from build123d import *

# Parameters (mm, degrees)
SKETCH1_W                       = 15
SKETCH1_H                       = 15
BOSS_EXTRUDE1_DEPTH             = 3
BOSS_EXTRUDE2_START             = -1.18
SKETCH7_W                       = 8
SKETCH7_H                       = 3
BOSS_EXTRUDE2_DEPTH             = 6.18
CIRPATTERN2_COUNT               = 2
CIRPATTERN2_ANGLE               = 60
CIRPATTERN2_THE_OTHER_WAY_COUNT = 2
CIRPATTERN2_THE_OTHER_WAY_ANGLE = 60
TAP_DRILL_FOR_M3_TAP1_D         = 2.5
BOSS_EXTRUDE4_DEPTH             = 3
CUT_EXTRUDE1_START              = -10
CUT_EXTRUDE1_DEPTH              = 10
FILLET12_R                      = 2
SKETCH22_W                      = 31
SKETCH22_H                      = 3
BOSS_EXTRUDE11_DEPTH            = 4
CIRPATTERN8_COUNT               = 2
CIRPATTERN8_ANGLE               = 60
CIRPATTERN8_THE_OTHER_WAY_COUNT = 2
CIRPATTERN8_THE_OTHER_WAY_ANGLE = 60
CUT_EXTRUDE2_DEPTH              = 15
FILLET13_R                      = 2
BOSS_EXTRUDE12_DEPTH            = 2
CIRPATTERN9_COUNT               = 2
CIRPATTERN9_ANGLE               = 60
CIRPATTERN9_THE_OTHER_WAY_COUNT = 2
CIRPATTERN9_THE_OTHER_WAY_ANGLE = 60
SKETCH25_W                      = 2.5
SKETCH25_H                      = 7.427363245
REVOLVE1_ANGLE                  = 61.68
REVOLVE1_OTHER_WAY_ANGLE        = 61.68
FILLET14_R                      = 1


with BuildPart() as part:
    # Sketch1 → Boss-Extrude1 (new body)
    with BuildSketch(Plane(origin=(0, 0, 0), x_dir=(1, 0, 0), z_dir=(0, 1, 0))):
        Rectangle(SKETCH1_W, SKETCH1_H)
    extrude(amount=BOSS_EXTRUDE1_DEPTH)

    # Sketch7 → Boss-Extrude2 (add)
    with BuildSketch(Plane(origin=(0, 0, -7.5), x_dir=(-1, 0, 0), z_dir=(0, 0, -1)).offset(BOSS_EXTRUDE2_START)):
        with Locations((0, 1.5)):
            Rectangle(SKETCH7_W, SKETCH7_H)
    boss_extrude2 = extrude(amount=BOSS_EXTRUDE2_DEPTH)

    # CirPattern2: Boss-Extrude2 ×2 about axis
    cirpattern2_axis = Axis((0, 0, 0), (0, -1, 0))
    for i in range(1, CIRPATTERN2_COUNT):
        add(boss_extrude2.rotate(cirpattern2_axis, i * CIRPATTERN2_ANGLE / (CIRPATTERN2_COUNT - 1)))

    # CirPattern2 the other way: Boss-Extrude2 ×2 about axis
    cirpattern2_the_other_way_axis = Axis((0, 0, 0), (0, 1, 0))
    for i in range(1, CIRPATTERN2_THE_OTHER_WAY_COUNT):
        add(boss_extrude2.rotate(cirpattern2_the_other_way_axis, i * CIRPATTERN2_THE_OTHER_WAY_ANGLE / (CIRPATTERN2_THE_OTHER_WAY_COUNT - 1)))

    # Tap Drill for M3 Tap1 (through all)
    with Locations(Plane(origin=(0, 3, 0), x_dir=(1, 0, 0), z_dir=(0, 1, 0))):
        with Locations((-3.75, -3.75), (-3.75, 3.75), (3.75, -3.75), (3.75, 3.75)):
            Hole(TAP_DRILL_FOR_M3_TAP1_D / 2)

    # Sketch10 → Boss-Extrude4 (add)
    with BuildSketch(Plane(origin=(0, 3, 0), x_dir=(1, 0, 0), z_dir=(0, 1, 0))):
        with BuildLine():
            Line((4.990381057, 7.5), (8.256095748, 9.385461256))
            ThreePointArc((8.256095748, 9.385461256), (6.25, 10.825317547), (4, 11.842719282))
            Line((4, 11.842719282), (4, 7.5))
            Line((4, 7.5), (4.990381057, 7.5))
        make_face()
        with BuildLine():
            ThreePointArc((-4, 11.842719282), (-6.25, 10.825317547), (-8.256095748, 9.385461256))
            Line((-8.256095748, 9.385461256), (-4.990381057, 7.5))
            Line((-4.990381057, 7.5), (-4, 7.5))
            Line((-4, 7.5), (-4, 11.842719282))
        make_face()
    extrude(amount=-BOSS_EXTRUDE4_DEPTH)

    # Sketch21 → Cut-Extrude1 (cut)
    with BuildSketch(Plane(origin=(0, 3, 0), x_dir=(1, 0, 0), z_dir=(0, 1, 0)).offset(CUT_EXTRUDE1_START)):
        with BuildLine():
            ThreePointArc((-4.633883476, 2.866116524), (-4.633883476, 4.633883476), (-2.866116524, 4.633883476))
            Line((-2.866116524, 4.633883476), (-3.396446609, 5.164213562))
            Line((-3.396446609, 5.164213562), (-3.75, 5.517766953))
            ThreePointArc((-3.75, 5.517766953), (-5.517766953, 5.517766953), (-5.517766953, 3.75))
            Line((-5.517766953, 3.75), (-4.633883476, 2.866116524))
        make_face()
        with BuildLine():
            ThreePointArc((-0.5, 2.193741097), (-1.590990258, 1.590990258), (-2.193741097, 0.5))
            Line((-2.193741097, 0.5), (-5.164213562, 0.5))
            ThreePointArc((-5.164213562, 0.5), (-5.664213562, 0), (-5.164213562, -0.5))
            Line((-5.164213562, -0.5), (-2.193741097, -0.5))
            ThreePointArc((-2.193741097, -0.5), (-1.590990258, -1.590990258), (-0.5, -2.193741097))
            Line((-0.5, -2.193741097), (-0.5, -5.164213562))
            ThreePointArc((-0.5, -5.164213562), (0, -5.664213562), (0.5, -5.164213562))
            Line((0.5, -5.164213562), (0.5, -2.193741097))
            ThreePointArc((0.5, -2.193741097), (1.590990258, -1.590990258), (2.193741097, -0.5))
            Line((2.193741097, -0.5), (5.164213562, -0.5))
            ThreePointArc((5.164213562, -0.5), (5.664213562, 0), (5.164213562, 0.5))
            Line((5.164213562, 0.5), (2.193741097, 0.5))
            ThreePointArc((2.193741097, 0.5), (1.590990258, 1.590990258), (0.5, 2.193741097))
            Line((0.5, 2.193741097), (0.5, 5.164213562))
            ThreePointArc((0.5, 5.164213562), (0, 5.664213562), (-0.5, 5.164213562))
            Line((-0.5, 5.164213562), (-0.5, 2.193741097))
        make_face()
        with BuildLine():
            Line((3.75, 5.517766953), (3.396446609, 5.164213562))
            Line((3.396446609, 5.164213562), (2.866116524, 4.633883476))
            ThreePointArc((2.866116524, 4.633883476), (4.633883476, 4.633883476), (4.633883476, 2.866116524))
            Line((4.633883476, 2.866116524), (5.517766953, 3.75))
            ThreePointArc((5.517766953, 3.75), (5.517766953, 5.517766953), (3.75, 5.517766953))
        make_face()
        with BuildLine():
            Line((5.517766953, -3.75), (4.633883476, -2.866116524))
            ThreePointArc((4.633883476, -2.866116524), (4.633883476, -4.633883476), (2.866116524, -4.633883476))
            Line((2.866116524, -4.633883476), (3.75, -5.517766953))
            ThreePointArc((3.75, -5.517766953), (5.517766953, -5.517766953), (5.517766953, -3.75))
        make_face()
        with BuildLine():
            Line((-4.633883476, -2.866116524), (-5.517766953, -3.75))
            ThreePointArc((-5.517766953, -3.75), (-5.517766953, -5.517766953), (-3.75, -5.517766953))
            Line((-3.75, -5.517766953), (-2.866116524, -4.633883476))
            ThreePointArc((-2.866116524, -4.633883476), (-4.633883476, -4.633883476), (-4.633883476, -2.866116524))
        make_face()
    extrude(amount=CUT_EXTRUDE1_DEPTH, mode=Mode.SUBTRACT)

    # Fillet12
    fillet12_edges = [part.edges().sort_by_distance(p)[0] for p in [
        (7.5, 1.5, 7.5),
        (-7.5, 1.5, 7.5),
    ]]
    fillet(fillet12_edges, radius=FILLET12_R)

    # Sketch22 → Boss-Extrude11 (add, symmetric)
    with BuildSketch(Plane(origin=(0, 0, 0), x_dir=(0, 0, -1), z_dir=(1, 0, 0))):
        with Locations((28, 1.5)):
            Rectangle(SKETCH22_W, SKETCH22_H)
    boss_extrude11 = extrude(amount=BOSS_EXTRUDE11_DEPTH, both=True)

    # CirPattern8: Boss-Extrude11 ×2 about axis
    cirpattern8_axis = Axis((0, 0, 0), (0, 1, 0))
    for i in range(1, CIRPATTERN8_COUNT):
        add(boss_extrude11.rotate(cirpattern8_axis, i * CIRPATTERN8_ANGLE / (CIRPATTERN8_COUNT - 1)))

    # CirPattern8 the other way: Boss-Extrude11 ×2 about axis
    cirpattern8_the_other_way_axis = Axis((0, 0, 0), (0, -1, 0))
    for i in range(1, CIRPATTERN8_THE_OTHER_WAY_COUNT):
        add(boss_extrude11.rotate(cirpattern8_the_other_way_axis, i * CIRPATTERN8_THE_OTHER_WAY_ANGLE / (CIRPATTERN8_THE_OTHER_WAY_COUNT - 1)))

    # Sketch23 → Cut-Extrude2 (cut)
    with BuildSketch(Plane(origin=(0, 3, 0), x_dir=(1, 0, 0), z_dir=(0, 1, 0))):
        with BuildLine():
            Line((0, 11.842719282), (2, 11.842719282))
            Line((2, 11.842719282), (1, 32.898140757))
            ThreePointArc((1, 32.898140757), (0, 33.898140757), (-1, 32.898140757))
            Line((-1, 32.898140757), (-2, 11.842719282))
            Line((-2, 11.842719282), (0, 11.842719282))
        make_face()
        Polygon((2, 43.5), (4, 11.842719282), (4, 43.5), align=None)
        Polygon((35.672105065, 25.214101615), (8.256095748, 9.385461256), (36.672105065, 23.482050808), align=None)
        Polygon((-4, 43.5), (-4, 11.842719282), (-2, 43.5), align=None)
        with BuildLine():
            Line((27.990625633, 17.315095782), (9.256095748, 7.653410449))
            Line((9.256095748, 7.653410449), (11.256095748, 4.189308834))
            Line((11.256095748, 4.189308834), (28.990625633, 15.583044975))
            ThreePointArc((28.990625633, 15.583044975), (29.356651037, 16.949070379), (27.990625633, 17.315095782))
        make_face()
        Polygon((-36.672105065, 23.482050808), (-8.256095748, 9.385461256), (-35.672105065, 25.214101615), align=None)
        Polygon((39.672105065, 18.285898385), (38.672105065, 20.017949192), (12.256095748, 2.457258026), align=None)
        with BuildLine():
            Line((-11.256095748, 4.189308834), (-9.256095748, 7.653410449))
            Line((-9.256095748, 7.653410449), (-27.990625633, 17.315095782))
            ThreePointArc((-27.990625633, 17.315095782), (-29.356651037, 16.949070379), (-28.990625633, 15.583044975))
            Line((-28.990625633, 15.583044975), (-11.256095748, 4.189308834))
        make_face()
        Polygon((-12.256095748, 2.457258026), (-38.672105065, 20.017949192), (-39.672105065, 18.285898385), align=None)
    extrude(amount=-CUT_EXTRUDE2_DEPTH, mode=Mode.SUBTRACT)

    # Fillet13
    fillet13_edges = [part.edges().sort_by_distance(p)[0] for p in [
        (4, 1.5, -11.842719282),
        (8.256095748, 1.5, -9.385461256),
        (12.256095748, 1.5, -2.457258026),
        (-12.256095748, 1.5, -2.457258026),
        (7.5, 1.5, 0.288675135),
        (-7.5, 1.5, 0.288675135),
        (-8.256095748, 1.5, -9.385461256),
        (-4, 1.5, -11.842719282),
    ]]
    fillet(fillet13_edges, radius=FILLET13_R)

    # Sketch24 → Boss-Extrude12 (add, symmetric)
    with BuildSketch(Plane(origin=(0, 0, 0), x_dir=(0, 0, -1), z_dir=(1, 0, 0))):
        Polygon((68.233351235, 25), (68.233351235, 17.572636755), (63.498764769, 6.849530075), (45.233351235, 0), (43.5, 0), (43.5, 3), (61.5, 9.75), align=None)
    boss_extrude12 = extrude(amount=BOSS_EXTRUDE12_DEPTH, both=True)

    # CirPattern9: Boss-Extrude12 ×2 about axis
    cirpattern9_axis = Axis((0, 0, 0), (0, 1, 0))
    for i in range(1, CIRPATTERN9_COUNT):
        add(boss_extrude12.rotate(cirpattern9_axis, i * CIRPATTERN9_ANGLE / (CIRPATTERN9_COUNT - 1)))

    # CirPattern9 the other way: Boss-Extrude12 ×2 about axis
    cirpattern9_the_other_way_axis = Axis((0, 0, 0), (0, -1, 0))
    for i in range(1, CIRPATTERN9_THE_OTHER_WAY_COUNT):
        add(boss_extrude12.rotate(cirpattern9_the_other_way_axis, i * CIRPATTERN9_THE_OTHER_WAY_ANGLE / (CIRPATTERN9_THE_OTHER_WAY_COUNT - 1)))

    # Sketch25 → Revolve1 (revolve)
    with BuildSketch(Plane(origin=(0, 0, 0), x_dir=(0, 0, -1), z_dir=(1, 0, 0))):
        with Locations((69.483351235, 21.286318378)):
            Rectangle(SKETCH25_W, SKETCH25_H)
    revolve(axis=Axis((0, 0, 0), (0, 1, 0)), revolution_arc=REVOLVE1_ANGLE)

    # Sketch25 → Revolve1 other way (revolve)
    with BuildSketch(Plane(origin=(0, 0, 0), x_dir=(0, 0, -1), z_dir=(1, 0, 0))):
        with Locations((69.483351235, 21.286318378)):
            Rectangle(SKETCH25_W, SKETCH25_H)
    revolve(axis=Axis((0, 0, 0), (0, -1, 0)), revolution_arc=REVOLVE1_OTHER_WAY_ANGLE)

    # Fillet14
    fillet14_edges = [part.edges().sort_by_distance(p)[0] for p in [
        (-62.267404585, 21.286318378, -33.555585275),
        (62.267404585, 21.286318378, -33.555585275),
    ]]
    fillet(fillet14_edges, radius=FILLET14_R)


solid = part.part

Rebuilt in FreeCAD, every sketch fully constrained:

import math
import FreeCAD as App
import Part
import Sketcher

V = App.Vector
Q = App.Units.Quantity


def edges_at(feature, points):
    """Names of the edges that pass closest to the given points."""
    edges = feature.Shape.Edges
    near = lambda p: min(range(len(edges)), key=lambda i: edges[i].distToShape(Part.Vertex(*p))[0])
    return sorted({f"Edge{near(p) + 1}" for p in points})


def add_polygon(sketch, points):
    """Adds a closed chain of lines whose ends are joined by coincident constraints."""
    first, n = sketch.GeometryCount, len(points)
    for a, b in zip(points, points[1:] + points[:1]):
        sketch.addGeometry(Part.LineSegment(App.Vector(*a, 0), App.Vector(*b, 0)), False)
    for i in range(n):
        sketch.addConstraint(Sketcher.Constraint("Coincident", first + i, 2, first + (i + 1) % n, 1))

doc = App.newDocument("Part")
body = doc.addObject("PartDesign::Body", "Body")

sketch1 = body.newObject("Sketcher::SketchObject", "Sketch")
sketch1.AttachmentSupport = (doc.getObject("XZ_Plane"), [""])
sketch1.MapMode = "FlatFace"
add_polygon(sketch1, [(-7.5, -7.5), (-7.5, 7.5), (7.5, 7.5), (7.5, -7.5)])
sketch1.addConstraint(Sketcher.Constraint("Vertical", 0))
sketch1.addConstraint(Sketcher.Constraint("Horizontal", 1))
sketch1.addConstraint(Sketcher.Constraint("Vertical", 2))
sketch1.addConstraint(Sketcher.Constraint("Horizontal", 3))
sketch1.addConstraint(Sketcher.Constraint("Symmetric", 0, 2, 2, 2, -1, 1))
sketch1.addConstraint(Sketcher.Constraint("Equal", 3, 0))
sketch1.addConstraint(Sketcher.Constraint("DistanceX", 1, 1, 1, 2, 15.0))
pad1 = body.newObject("PartDesign::Pad", "Pad")
pad1.Profile = sketch1
pad1.Length = 3
pad1.Reversed = True

sketch2 = body.newObject("Sketcher::SketchObject", "Sketch001")
sketch2.AttachmentSupport = (doc.getObject("XY_Plane"), [""])
sketch2.MapMode = "FlatFace"
sketch2.AttachmentOffset = App.Placement(V(0, 0, -6.32), App.Rotation())
add_polygon(sketch2, [(4, 3), (4, 0), (-4, 0), (-4, 3)])
sketch2.addConstraint(Sketcher.Constraint("Vertical", 0))
sketch2.addConstraint(Sketcher.Constraint("Horizontal", 1))
sketch2.addConstraint(Sketcher.Constraint("Vertical", 2))
sketch2.addConstraint(Sketcher.Constraint("Horizontal", 3))
sketch2.addConstraint(Sketcher.Constraint("Symmetric", 0, 2, 1, 2, -1, 1))
sketch2.addConstraint(Sketcher.Constraint("DistanceX", 1, 2, 1, 1, 8.0))
sketch2.addConstraint(Sketcher.Constraint("DistanceY", 0, 2, 0, 1, 3.0))
pad2 = body.newObject("PartDesign::Pad", "Pad001")
pad2.Profile = sketch2
pad2.Length = 6.18
pad2.Reversed = True
doc.recompute()

polarpattern = body.newObject("PartDesign::PolarPattern", "PolarPattern")
polarpattern.Originals = [pad2]
polarpattern.Axis = (doc.getObject("Y_Axis"), [""])
polarpattern.Angle = 60
polarpattern.Occurrences = 2
polarpattern.Reversed = True
body.Tip = polarpattern
doc.recompute()

polarpattern2 = body.newObject("PartDesign::PolarPattern", "PolarPattern001")
polarpattern2.Originals = [pad2]
polarpattern2.Axis = (doc.getObject("Y_Axis"), [""])
polarpattern2.Angle = 60
polarpattern2.Occurrences = 2
body.Tip = polarpattern2

sketch3 = body.newObject("Sketcher::SketchObject", "Sketch002")
sketch3.AttachmentSupport = (doc.getObject("XZ_Plane"), [""])
sketch3.MapMode = "FlatFace"
sketch3.AttachmentOffset = App.Placement(V(0, 0, -3), App.Rotation())
sketch3.addGeometry(Part.Circle(V(-3.75, 3.75, 0), V(0, 0, 1), 1.25), False)
sketch3.addGeometry(Part.Circle(V(-3.75, -3.75, 0), V(0, 0, 1), 1.25), False)
sketch3.addGeometry(Part.Circle(V(3.75, 3.75, 0), V(0, 0, 1), 1.25), False)
sketch3.addGeometry(Part.Circle(V(3.75, -3.75, 0), V(0, 0, 1), 1.25), False)
sketch3.addConstraint(Sketcher.Constraint("Equal", 0, 1))
sketch3.addConstraint(Sketcher.Constraint("Equal", 1, 2))
sketch3.addConstraint(Sketcher.Constraint("Equal", 2, 3))
sketch3.addConstraint(Sketcher.Constraint("Symmetric", 1, 3, 2, 3, -1, 1))
sketch3.addConstraint(Sketcher.Constraint("Symmetric", 0, 3, 3, 3, -1, 1))
sketch3.addConstraint(Sketcher.Constraint("Symmetric", 0, 3, 2, 3, -2))
sketch3.addConstraint(Sketcher.Constraint("Diameter", 0, 2.5))
sketch3.addConstraint(Sketcher.Constraint("DistanceY", 1, 3, 0, 3, 7.5))
sketch3.addConstraint(Sketcher.Constraint("DistanceX", 0, 3, 2, 3, 7.5))
doc.recompute()
hole = body.newObject("PartDesign::Hole", "Hole")
hole.Profile = sketch3
hole.ThreadType = "None"
hole.Diameter = 2.5
hole.DepthType = "ThroughAll"
hole.Reversed = True

sketch4 = body.newObject("Sketcher::SketchObject", "Sketch003")
sketch4.AttachmentSupport = (doc.getObject("XZ_Plane"), [""])
sketch4.MapMode = "FlatFace"
sketch4.AttachmentOffset = App.Placement(V(0, 0, -3), App.Rotation())
sketch4.addGeometry(Part.LineSegment(V(4.990381, -7.5, 0), V(8.256096, -9.385461, 0)), False)
sketch4.addGeometry(Part.ArcOfCircle(Part.Circle(V(0, 0, 0), V(0, 0, 1), 12.5), math.radians(-71.337075), math.radians(-48.662925)), False)
sketch4.addGeometry(Part.LineSegment(V(4, -11.842719, 0), V(4, -7.5, 0)), False)
sketch4.addGeometry(Part.LineSegment(V(4, -7.5, 0), V(4.990381, -7.5, 0)), False)
sketch4.addGeometry(Part.ArcOfCircle(Part.Circle(V(0, 0, 0), V(0, 0, 1), 12.5), math.radians(-131.337075), math.radians(-108.662925)), False)
sketch4.addGeometry(Part.LineSegment(V(-8.256096, -9.385461, 0), V(-4.990381, -7.5, 0)), False)
sketch4.addGeometry(Part.LineSegment(V(-4.990381, -7.5, 0), V(-4, -7.5, 0)), False)
sketch4.addGeometry(Part.LineSegment(V(-4, -7.5, 0), V(-4, -11.842719, 0)), False)
sketch4.addConstraint(Sketcher.Constraint("Coincident", 0, 2, 1, 2))
sketch4.addConstraint(Sketcher.Constraint("Coincident", 1, 1, 2, 1))
sketch4.addConstraint(Sketcher.Constraint("Coincident", 2, 2, 3, 1))
sketch4.addConstraint(Sketcher.Constraint("Coincident", 3, 2, 0, 1))
sketch4.addConstraint(Sketcher.Constraint("Coincident", 4, 1, 5, 1))
sketch4.addConstraint(Sketcher.Constraint("Coincident", 5, 2, 6, 1))
sketch4.addConstraint(Sketcher.Constraint("Coincident", 6, 2, 7, 1))
sketch4.addConstraint(Sketcher.Constraint("Coincident", 7, 2, 4, 2))
sketch4.addConstraint(Sketcher.Constraint("Vertical", 2))
sketch4.addConstraint(Sketcher.Constraint("Horizontal", 3))
sketch4.addConstraint(Sketcher.Constraint("Horizontal", 6))
sketch4.addConstraint(Sketcher.Constraint("Vertical", 7))
sketch4.addConstraint(Sketcher.Constraint("Coincident", 1, 3, -1, 1))
sketch4.addConstraint(Sketcher.Constraint("Coincident", 4, 3, -1, 1))
sketch4.addConstraint(Sketcher.Constraint("Equal", 1, 4))
sketch4.addConstraint(Sketcher.Constraint("Symmetric", 3, 2, 5, 2, -2))
sketch4.addConstraint(Sketcher.Constraint("Horizontal", 0, 2, 4, 1))
sketch4.addConstraint(Sketcher.Constraint("Horizontal", 1, 1, 7, 2))
sketch4.addConstraint(Sketcher.Constraint("Radius", 1, 12.5))
sketch4.addConstraint(Sketcher.Constraint("Angle", 0, Q("-30 deg")))
sketch4.addConstraint(Sketcher.Constraint("DistanceX", -1, 1, 1, 1, 4.0))
sketch4.addConstraint(Sketcher.Constraint("DistanceY", 2, 2, -1, 1, 7.5))
sketch4.addConstraint(Sketcher.Constraint("DistanceX", 3, 1, 3, 2, 0.990381))
pad3 = body.newObject("PartDesign::Pad", "Pad002")
pad3.Profile = sketch4
pad3.Length = 3

sketch5 = body.newObject("Sketcher::SketchObject", "Sketch004")
sketch5.AttachmentSupport = (doc.getObject("XZ_Plane"), [""])
sketch5.MapMode = "FlatFace"
sketch5.AttachmentOffset = App.Placement(V(0, 0, 7), App.Rotation())
sketch5.addGeometry(Part.ArcOfCircle(Part.Circle(V(-3.75, -3.75, 0), V(0, 0, 1), 1.25), math.radians(135), math.radians(315)), False)
sketch5.addGeometry(Part.LineSegment(V(-2.866117, -4.633883, 0), V(-3.396447, -5.164214, 0)), False)
sketch5.addGeometry(Part.LineSegment(V(-3.396447, -5.164214, 0), V(-3.75, -5.517767, 0)), False)
sketch5.addGeometry(Part.ArcOfCircle(Part.Circle(V(-4.633883, -4.633883, 0), V(0, 0, 1), 1.25), math.radians(135), math.radians(315)), False)
sketch5.addGeometry(Part.LineSegment(V(-5.517767, -3.75, 0), V(-4.633883, -2.866117, 0)), False)
sketch5.addGeometry(Part.ArcOfCircle(Part.Circle(V(0, 0, 0), V(0, 0, 1), 2.25), math.radians(-167.160412), math.radians(-102.839588)), False)
sketch5.addGeometry(Part.LineSegment(V(-2.193741, -0.5, 0), V(-5.164214, -0.5, 0)), False)
sketch5.addGeometry(Part.ArcOfCircle(Part.Circle(V(-5.164214, 0, 0), V(0, 0, 1), 0.5), math.radians(90), math.radians(270)), False)
sketch5.addGeometry(Part.LineSegment(V(-5.164214, 0.5, 0), V(-2.193741, 0.5, 0)), False)
sketch5.addGeometry(Part.ArcOfCircle(Part.Circle(V(0, 0, 0), V(0, 0, 1), 2.25), math.radians(102.839588), math.radians(167.160412)), False)
sketch5.addGeometry(Part.LineSegment(V(-0.5, 2.193741, 0), V(-0.5, 5.164214, 0)), False)
sketch5.addGeometry(Part.ArcOfCircle(Part.Circle(V(0, 5.164214, 0), V(0, 0, 1), 0.5), math.radians(0), math.radians(180)), False)
sketch5.addGeometry(Part.LineSegment(V(0.5, 5.164214, 0), V(0.5, 2.193741, 0)), False)
sketch5.addGeometry(Part.ArcOfCircle(Part.Circle(V(0, 0, 0), V(0, 0, 1), 2.25), math.radians(12.839588), math.radians(77.160412)), False)
sketch5.addGeometry(Part.LineSegment(V(2.193741, 0.5, 0), V(5.164214, 0.5, 0)), False)
sketch5.addGeometry(Part.ArcOfCircle(Part.Circle(V(5.164214, 0, 0), V(0, 0, 1), 0.5), math.radians(-90), math.radians(90)), False)
sketch5.addGeometry(Part.LineSegment(V(5.164214, -0.5, 0), V(2.193741, -0.5, 0)), False)
sketch5.addGeometry(Part.ArcOfCircle(Part.Circle(V(0, 0, 0), V(0, 0, 1), 2.25), math.radians(-77.160412), math.radians(-12.839588)), False)
sketch5.addGeometry(Part.LineSegment(V(0.5, -2.193741, 0), V(0.5, -5.164214, 0)), False)
sketch5.addGeometry(Part.ArcOfCircle(Part.Circle(V(0, -5.164214, 0), V(0, 0, 1), 0.5), math.radians(180), math.radians(360)), False)
sketch5.addGeometry(Part.LineSegment(V(-0.5, -5.164214, 0), V(-0.5, -2.193741, 0)), False)
sketch5.addGeometry(Part.LineSegment(V(3.75, -5.517767, 0), V(3.396447, -5.164214, 0)), False)
sketch5.addGeometry(Part.LineSegment(V(3.396447, -5.164214, 0), V(2.866117, -4.633883, 0)), False)
sketch5.addGeometry(Part.ArcOfCircle(Part.Circle(V(3.75, -3.75, 0), V(0, 0, 1), 1.25), math.radians(-135), math.radians(45)), False)
sketch5.addGeometry(Part.LineSegment(V(4.633883, -2.866117, 0), V(5.517767, -3.75, 0)), False)
sketch5.addGeometry(Part.ArcOfCircle(Part.Circle(V(4.633883, -4.633883, 0), V(0, 0, 1), 1.25), math.radians(-135), math.radians(45)), False)
sketch5.addGeometry(Part.LineSegment(V(5.517767, 3.75, 0), V(4.633883, 2.866117, 0)), False)
sketch5.addGeometry(Part.ArcOfCircle(Part.Circle(V(3.75, 3.75, 0), V(0, 0, 1), 1.25), math.radians(-45), math.radians(135)), False)
sketch5.addGeometry(Part.LineSegment(V(2.866117, 4.633883, 0), V(3.75, 5.517767, 0)), False)
sketch5.addGeometry(Part.ArcOfCircle(Part.Circle(V(4.633883, 4.633883, 0), V(0, 0, 1), 1.25), math.radians(-45), math.radians(135)), False)
sketch5.addGeometry(Part.LineSegment(V(-4.633883, 2.866117, 0), V(-5.517767, 3.75, 0)), False)
sketch5.addGeometry(Part.ArcOfCircle(Part.Circle(V(-4.633883, 4.633883, 0), V(0, 0, 1), 1.25), math.radians(45), math.radians(225)), False)
sketch5.addGeometry(Part.LineSegment(V(-3.75, 5.517767, 0), V(-2.866117, 4.633883, 0)), False)
sketch5.addGeometry(Part.ArcOfCircle(Part.Circle(V(-3.75, 3.75, 0), V(0, 0, 1), 1.25), math.radians(45), math.radians(225)), False)
sketch5.addConstraint(Sketcher.Constraint("Tangent", 0, 2, 1, 1))
sketch5.addConstraint(Sketcher.Constraint("Coincident", 1, 2, 2, 1))
sketch5.addConstraint(Sketcher.Constraint("Tangent", 2, 2, 3, 2))
sketch5.addConstraint(Sketcher.Constraint("Tangent", 3, 1, 4, 1))
sketch5.addConstraint(Sketcher.Constraint("Tangent", 4, 2, 0, 1))
sketch5.addConstraint(Sketcher.Constraint("Coincident", 5, 1, 6, 1))
sketch5.addConstraint(Sketcher.Constraint("Tangent", 6, 2, 7, 2))
sketch5.addConstraint(Sketcher.Constraint("Tangent", 7, 1, 8, 1))
sketch5.addConstraint(Sketcher.Constraint("Coincident", 8, 2, 9, 2))
sketch5.addConstraint(Sketcher.Constraint("Coincident", 9, 1, 10, 1))
sketch5.addConstraint(Sketcher.Constraint("Tangent", 10, 2, 11, 2))
sketch5.addConstraint(Sketcher.Constraint("Tangent", 11, 1, 12, 1))
sketch5.addConstraint(Sketcher.Constraint("Coincident", 12, 2, 13, 2))
sketch5.addConstraint(Sketcher.Constraint("Coincident", 13, 1, 14, 1))
sketch5.addConstraint(Sketcher.Constraint("Tangent", 14, 2, 15, 2))
sketch5.addConstraint(Sketcher.Constraint("Tangent", 15, 1, 16, 1))
sketch5.addConstraint(Sketcher.Constraint("Coincident", 16, 2, 17, 2))
sketch5.addConstraint(Sketcher.Constraint("Coincident", 17, 1, 18, 1))
sketch5.addConstraint(Sketcher.Constraint("Tangent", 18, 2, 19, 2))
sketch5.addConstraint(Sketcher.Constraint("Tangent", 19, 1, 20, 1))
sketch5.addConstraint(Sketcher.Constraint("Coincident", 20, 2, 5, 2))
sketch5.addConstraint(Sketcher.Constraint("Coincident", 21, 2, 22, 1))
sketch5.addConstraint(Sketcher.Constraint("Tangent", 22, 2, 23, 1))
sketch5.addConstraint(Sketcher.Constraint("Tangent", 23, 2, 24, 1))
sketch5.addConstraint(Sketcher.Constraint("Tangent", 24, 2, 25, 2))
sketch5.addConstraint(Sketcher.Constraint("Tangent", 25, 1, 21, 1))
sketch5.addConstraint(Sketcher.Constraint("Tangent", 26, 2, 27, 1))
sketch5.addConstraint(Sketcher.Constraint("Tangent", 27, 2, 28, 1))
sketch5.addConstraint(Sketcher.Constraint("Tangent", 28, 2, 29, 2))
sketch5.addConstraint(Sketcher.Constraint("Tangent", 29, 1, 26, 1))
sketch5.addConstraint(Sketcher.Constraint("Tangent", 30, 2, 31, 2))
sketch5.addConstraint(Sketcher.Constraint("Tangent", 31, 1, 32, 1))
sketch5.addConstraint(Sketcher.Constraint("Tangent", 32, 2, 33, 1))
sketch5.addConstraint(Sketcher.Constraint("Tangent", 33, 2, 30, 1))
sketch5.addConstraint(Sketcher.Constraint("Horizontal", 6))
sketch5.addConstraint(Sketcher.Constraint("Horizontal", 8))
sketch5.addConstraint(Sketcher.Constraint("Vertical", 10))
sketch5.addConstraint(Sketcher.Constraint("Vertical", 12))
sketch5.addConstraint(Sketcher.Constraint("Horizontal", 14))
sketch5.addConstraint(Sketcher.Constraint("Horizontal", 16))
sketch5.addConstraint(Sketcher.Constraint("Vertical", 18))
sketch5.addConstraint(Sketcher.Constraint("Vertical", 20))
sketch5.addConstraint(Sketcher.Constraint("Coincident", 5, 3, -1, 1))
sketch5.addConstraint(Sketcher.Constraint("Coincident", 9, 3, -1, 1))
sketch5.addConstraint(Sketcher.Constraint("Coincident", 13, 3, -1, 1))
sketch5.addConstraint(Sketcher.Constraint("Coincident", 17, 3, -1, 1))
sketch5.addConstraint(Sketcher.Constraint("Equal", 0, 3))
sketch5.addConstraint(Sketcher.Constraint("Equal", 5, 9))
sketch5.addConstraint(Sketcher.Constraint("Equal", 7, 11))
sketch5.addConstraint(Sketcher.Constraint("Equal", 9, 13))
sketch5.addConstraint(Sketcher.Constraint("Equal", 11, 15))
sketch5.addConstraint(Sketcher.Constraint("Equal", 13, 17))
sketch5.addConstraint(Sketcher.Constraint("Equal", 15, 19))
sketch5.addConstraint(Sketcher.Constraint("Equal", 3, 23))
sketch5.addConstraint(Sketcher.Constraint("Equal", 23, 25))
sketch5.addConstraint(Sketcher.Constraint("Equal", 25, 27))
sketch5.addConstraint(Sketcher.Constraint("Equal", 27, 29))
sketch5.addConstraint(Sketcher.Constraint("Equal", 29, 31))
sketch5.addConstraint(Sketcher.Constraint("Equal", 31, 33))
sketch5.addConstraint(Sketcher.Constraint("Symmetric", 7, 3, 15, 3, -1, 1))
sketch5.addConstraint(Sketcher.Constraint("Symmetric", 11, 3, 19, 3, -1, 1))
sketch5.addConstraint(Sketcher.Constraint("Symmetric", 0, 3, 27, 3, -1, 1))
sketch5.addConstraint(Sketcher.Constraint("Symmetric", 3, 3, 29, 3, -1, 1))
sketch5.addConstraint(Sketcher.Constraint("Symmetric", 25, 3, 31, 3, -1, 1))
sketch5.addConstraint(Sketcher.Constraint("Symmetric", 23, 3, 33, 3, -1, 1))
sketch5.addConstraint(Sketcher.Constraint("Symmetric", 0, 3, 23, 3, -2))
sketch5.addConstraint(Sketcher.Constraint("Symmetric", 3, 3, 25, 3, -2))
sketch5.addConstraint(Sketcher.Constraint("Symmetric", 1, 2, 21, 2, -2))
sketch5.addConstraint(Sketcher.Constraint("PointOnObject", 7, 3, -1))
sketch5.addConstraint(Sketcher.Constraint("PointOnObject", 11, 3, -2))
sketch5.addConstraint(Sketcher.Constraint("Parallel", 1, 2))
sketch5.addConstraint(Sketcher.Constraint("Perpendicular", 4, 21))
sketch5.addConstraint(Sketcher.Constraint("Horizontal", 25, 3, 0, 2))
sketch5.addConstraint(Sketcher.Constraint("Horizontal", 19, 3, 1, 2))
sketch5.addConstraint(Sketcher.Constraint("Equal", 16, 10))
sketch5.addConstraint(Sketcher.Constraint("Radius", 7, 0.5))
sketch5.addConstraint(Sketcher.Constraint("Radius", 0, 1.25))
sketch5.addConstraint(Sketcher.Constraint("Radius", 5, 2.25))
sketch5.addConstraint(Sketcher.Constraint("Distance", 2, 0.5))
sketch5.addConstraint(Sketcher.Constraint("DistanceX", 0, 3, -1, 1, 3.75))
sketch5.addConstraint(Sketcher.Constraint("DistanceY", 0, 3, -1, 1, 3.75))
pocket1 = body.newObject("PartDesign::Pocket", "Pocket")
pocket1.Profile = sketch5
pocket1.Length = 10
doc.recompute()

fillet = body.newObject("PartDesign::Fillet", "Fillet")
fillet.Base = (pocket1, edges_at(pocket1, [(7.5, 1.5, 7.5), (-7.5, 1.5, 7.5)]))
fillet.Radius = 2

sketch6 = body.newObject("Sketcher::SketchObject", "Sketch005")
sketch6.AttachmentSupport = (doc.getObject("YZ_Plane"), [""])
sketch6.MapMode = "FlatFace"
add_polygon(sketch6, [(3, -12.5), (0, -12.5), (0, -43.5), (3, -43.5)])
sketch6.addConstraint(Sketcher.Constraint("Horizontal", 0))
sketch6.addConstraint(Sketcher.Constraint("Vertical", 1))
sketch6.addConstraint(Sketcher.Constraint("Horizontal", 2))
sketch6.addConstraint(Sketcher.Constraint("Vertical", 3))
sketch6.addConstraint(Sketcher.Constraint("PointOnObject", 0, 2, -2))
sketch6.addConstraint(Sketcher.Constraint("DistanceX", 0, 2, 0, 1, 3.0))
sketch6.addConstraint(Sketcher.Constraint("DistanceY", 1, 2, 1, 1, 31.0))
sketch6.addConstraint(Sketcher.Constraint("DistanceY", 0, 2, -1, 1, 12.5))
pad4 = body.newObject("PartDesign::Pad", "Pad003")
pad4.Profile = sketch6
pad4.Length = 8
pad4.Midplane = True
doc.recompute()

polarpattern3 = body.newObject("PartDesign::PolarPattern", "PolarPattern002")
polarpattern3.Originals = [pad4]
polarpattern3.Axis = (doc.getObject("Y_Axis"), [""])
polarpattern3.Angle = 60
polarpattern3.Occurrences = 2
body.Tip = polarpattern3
doc.recompute()

polarpattern4 = body.newObject("PartDesign::PolarPattern", "PolarPattern003")
polarpattern4.Originals = [pad4]
polarpattern4.Axis = (doc.getObject("Y_Axis"), [""])
polarpattern4.Angle = 60
polarpattern4.Occurrences = 2
polarpattern4.Reversed = True
body.Tip = polarpattern4

sketch7 = body.newObject("Sketcher::SketchObject", "Sketch006")
sketch7.AttachmentSupport = (doc.getObject("XZ_Plane"), [""])
sketch7.MapMode = "FlatFace"
sketch7.AttachmentOffset = App.Placement(V(0, 0, -3), App.Rotation())
sketch7.addGeometry(Part.LineSegment(V(2, -11.842719, 0), V(1, -32.898141, 0)), False)
sketch7.addGeometry(Part.ArcOfCircle(Part.Circle(V(0, -32.898141, 0), V(0, 0, 1), 1), math.radians(180), math.radians(360)), False)
sketch7.addGeometry(Part.LineSegment(V(-1, -32.898141, 0), V(-2, -11.842719, 0)), False)
sketch7.addGeometry(Part.LineSegment(V(-2, -11.842719, 0), V(2, -11.842719, 0)), False)
add_polygon(sketch7, [(2, -43.5), (4, -11.842719), (4, -43.5)])
add_polygon(sketch7, [(35.672105, -25.214102), (8.256096, -9.385461), (36.672105, -23.482051)])
add_polygon(sketch7, [(-4, -43.5), (-4, -11.842719), (-2, -43.5)])
sketch7.addGeometry(Part.LineSegment(V(27.990626, -17.315096, 0), V(9.256096, -7.65341, 0)), False)
sketch7.addGeometry(Part.LineSegment(V(9.256096, -7.65341, 0), V(11.256096, -4.189309, 0)), False)
sketch7.addGeometry(Part.LineSegment(V(11.256096, -4.189309, 0), V(28.990626, -15.583045, 0)), False)
sketch7.addGeometry(Part.ArcOfCircle(Part.Circle(V(28.490626, -16.44907, 0), V(0, 0, 1), 1), math.radians(-120), math.radians(60)), False)
add_polygon(sketch7, [(-36.672105, -23.482051), (-8.256096, -9.385461), (-35.672105, -25.214102)])
add_polygon(sketch7, [(39.672105, -18.285898), (38.672105, -20.017949), (12.256096, -2.457258)])
sketch7.addGeometry(Part.LineSegment(V(-11.256096, -4.189309, 0), V(-9.256096, -7.65341, 0)), False)
sketch7.addGeometry(Part.LineSegment(V(-9.256096, -7.65341, 0), V(-27.990626, -17.315096, 0)), False)
sketch7.addGeometry(Part.ArcOfCircle(Part.Circle(V(-28.490626, -16.44907, 0), V(0, 0, 1), 1), math.radians(120), math.radians(300)), False)
sketch7.addGeometry(Part.LineSegment(V(-28.990626, -15.583045, 0), V(-11.256096, -4.189309, 0)), False)
add_polygon(sketch7, [(-12.256096, -2.457258), (-38.672105, -20.017949), (-39.672105, -18.285898)])
sketch7.addConstraint(Sketcher.Constraint("Coincident", 0, 2, 1, 2))
sketch7.addConstraint(Sketcher.Constraint("Coincident", 1, 1, 2, 1))
sketch7.addConstraint(Sketcher.Constraint("Coincident", 2, 2, 3, 1))
sketch7.addConstraint(Sketcher.Constraint("Coincident", 3, 2, 0, 1))
sketch7.addConstraint(Sketcher.Constraint("Coincident", 13, 2, 14, 1))
sketch7.addConstraint(Sketcher.Constraint("Coincident", 14, 2, 15, 1))
sketch7.addConstraint(Sketcher.Constraint("Coincident", 15, 2, 16, 2))
sketch7.addConstraint(Sketcher.Constraint("Coincident", 16, 1, 13, 1))
sketch7.addConstraint(Sketcher.Constraint("Coincident", 23, 2, 24, 1))
sketch7.addConstraint(Sketcher.Constraint("Coincident", 24, 2, 25, 2))
sketch7.addConstraint(Sketcher.Constraint("Coincident", 25, 1, 26, 1))
sketch7.addConstraint(Sketcher.Constraint("Coincident", 26, 2, 23, 1))
sketch7.addConstraint(Sketcher.Constraint("Horizontal", 3))
sketch7.addConstraint(Sketcher.Constraint("Vertical", 5))
sketch7.addConstraint(Sketcher.Constraint("Horizontal", 6))
sketch7.addConstraint(Sketcher.Constraint("Vertical", 10))
sketch7.addConstraint(Sketcher.Constraint("Horizontal", 12))
sketch7.addConstraint(Sketcher.Constraint("Equal", 1, 16))
sketch7.addConstraint(Sketcher.Constraint("Equal", 16, 25))
sketch7.addConstraint(Sketcher.Constraint("Symmetric", 16, 3, 25, 3, -2))
sketch7.addConstraint(Sketcher.Constraint("Symmetric", 0, 2, 1, 1, -2))
sketch7.addConstraint(Sketcher.Constraint("Symmetric", 4, 2, 10, 2, -2))
sketch7.addConstraint(Sketcher.Constraint("Symmetric", 6, 2, 11, 2, -2))
sketch7.addConstraint(Sketcher.Constraint("Symmetric", 7, 2, 17, 2, -2))
sketch7.addConstraint(Sketcher.Constraint("Symmetric", 9, 2, 18, 2, -2))
sketch7.addConstraint(Sketcher.Constraint("Symmetric", 8, 2, 19, 2, -2))
sketch7.addConstraint(Sketcher.Constraint("Symmetric", 13, 2, 23, 2, -2))
sketch7.addConstraint(Sketcher.Constraint("Symmetric", 14, 2, 26, 2, -2))
sketch7.addConstraint(Sketcher.Constraint("Symmetric", 20, 2, 27, 2, -2))
sketch7.addConstraint(Sketcher.Constraint("Symmetric", 22, 2, 28, 2, -2))
sketch7.addConstraint(Sketcher.Constraint("Symmetric", 21, 2, 29, 2, -2))
sketch7.addConstraint(Sketcher.Constraint("Perpendicular", 7, 9))
sketch7.addConstraint(Sketcher.Constraint("Parallel", 9, 14))
sketch7.addConstraint(Sketcher.Constraint("Parallel", 14, 20))
sketch7.addConstraint(Sketcher.Constraint("Perpendicular", 20, 22))
sketch7.addConstraint(Sketcher.Constraint("Horizontal", 1, 3, 0, 2))
sketch7.addConstraint(Sketcher.Constraint("Horizontal", 3, 2, 4, 2))
sketch7.addConstraint(Sketcher.Constraint("Horizontal", 16, 1, 24, 2))
sketch7.addConstraint(Sketcher.Constraint("Horizontal", 15, 2, 25, 1))
sketch7.addConstraint(Sketcher.Constraint("Vertical", 3, 2, 6, 2))
sketch7.addConstraint(Sketcher.Constraint("Vertical", 2, 2, 11, 2))
sketch7.addConstraint(Sketcher.Constraint("Equal", 4, 8))
sketch7.addConstraint(Sketcher.Constraint("Equal", 2, 13))
sketch7.addConstraint(Sketcher.Constraint("Equal", 13, 15))
sketch7.addConstraint(Sketcher.Constraint("Equal", 19, 20))
sketch7.addConstraint(Sketcher.Constraint("Equal", 17, 21))
sketch7.addConstraint(Sketcher.Constraint("Radius", 1, 1.0))
sketch7.addConstraint(Sketcher.Constraint("DistanceX", 3, 1, 3, 2, 4.0))
sketch7.addConstraint(Sketcher.Constraint("DistanceX", 6, 2, 6, 1, 2.0))
sketch7.addConstraint(Sketcher.Constraint("Angle", 7, Q("150 deg")))
sketch7.addConstraint(Sketcher.Constraint("Distance", 9, 2.0))
sketch7.addConstraint(Sketcher.Constraint("Distance", 14, 4.0))
sketch7.addConstraint(Sketcher.Constraint("DistanceX", 7, 2, 13, 2, 1.0))
sketch7.addConstraint(Sketcher.Constraint("DistanceX", 16, 1, 15, 2, 1.0))
sketch7.addConstraint(Sketcher.Constraint("DistanceX", 8, 2, 20, 2, 2.0))
sketch7.addConstraint(Sketcher.Constraint("DistanceY", 5, 2, -1, 1, 43.5))
sketch7.addConstraint(Sketcher.Constraint("DistanceX", 16, 3, 15, 2, 0.5))
sketch7.addConstraint(Sketcher.Constraint("DistanceY", 5, 2, 5, 1, 31.657281))
sketch7.addConstraint(Sketcher.Constraint("DistanceY", 9, 2, -1, 1, 25.214102))
sketch7.addConstraint(Sketcher.Constraint("DistanceY", 22, 2, -1, 1, 18.285898))
sketch7.addConstraint(Sketcher.Constraint("DistanceY", 1, 3, -1, 1, 32.898141))
sketch7.addConstraint(Sketcher.Constraint("DistanceY", 16, 3, -1, 1, 16.44907))
sketch7.addConstraint(Sketcher.Constraint("DistanceX", 25, 3, 16, 3, 56.981251))
pocket2 = body.newObject("PartDesign::Pocket", "Pocket001")
pocket2.Profile = sketch7
pocket2.Length = 15
pocket2.Reversed = True
doc.recompute()

fillet2 = body.newObject("PartDesign::Fillet", "Fillet001")
fillet2.Base = (pocket2, edges_at(pocket2, [
    (4, 1.5, -11.843),
    (8.256, 1.5, -9.385),
    (12.256, 1.5, -2.457),
    (-12.256, 1.5, -2.457),
    (7.5, 1.5, 0.289),
    (-7.5, 1.5, 0.289),
    (-8.256, 1.5, -9.385),
    (-4, 1.5, -11.843),
]))
fillet2.Radius = 2

sketch8 = body.newObject("Sketcher::SketchObject", "Sketch007")
sketch8.AttachmentSupport = (doc.getObject("YZ_Plane"), [""])
sketch8.MapMode = "FlatFace"
add_polygon(sketch8, [(17.572637, -68.233351), (25, -68.233351), (9.75, -61.5), (3, -43.5), (0, -43.5), (0, -45.233351), (6.84953, -63.498765)])
sketch8.addConstraint(Sketcher.Constraint("Horizontal", 0))
sketch8.addConstraint(Sketcher.Constraint("Horizontal", 3))
sketch8.addConstraint(Sketcher.Constraint("Vertical", 4))
sketch8.addConstraint(Sketcher.Constraint("PointOnObject", 3, 2, -2))
sketch8.addConstraint(Sketcher.Constraint("Parallel", 2, 5))
sketch8.addConstraint(Sketcher.Constraint("Parallel", 1, 6))
sketch8.addConstraint(Sketcher.Constraint("DistanceX", 3, 2, 3, 1, 3.0))
sketch8.addConstraint(Sketcher.Constraint("DistanceX", -1, 1, 0, 2, 25.0))
sketch8.addConstraint(Sketcher.Constraint("DistanceY", 1, 2, 2, 2, 18.0))
sketch8.addConstraint(Sketcher.Constraint("DistanceY", 0, 2, 4, 2, 23.0))
sketch8.addConstraint(Sketcher.Constraint("DistanceY", 1, 2, -1, 1, 61.5))
sketch8.addConstraint(Sketcher.Constraint("DistanceX", -1, 1, 1, 2, 9.75))
sketch8.addConstraint(Sketcher.Constraint("DistanceY", 4, 2, 4, 1, 1.733351))
sketch8.addConstraint(Sketcher.Constraint("Distance", 5, 19.50747))
pad5 = body.newObject("PartDesign::Pad", "Pad004")
pad5.Profile = sketch8
pad5.Length = 4
pad5.Midplane = True
doc.recompute()

polarpattern5 = body.newObject("PartDesign::PolarPattern", "PolarPattern004")
polarpattern5.Originals = [pad5]
polarpattern5.Axis = (doc.getObject("Y_Axis"), [""])
polarpattern5.Angle = 60
polarpattern5.Occurrences = 2
body.Tip = polarpattern5
doc.recompute()

polarpattern6 = body.newObject("PartDesign::PolarPattern", "PolarPattern005")
polarpattern6.Originals = [pad5]
polarpattern6.Axis = (doc.getObject("Y_Axis"), [""])
polarpattern6.Angle = 60
polarpattern6.Occurrences = 2
polarpattern6.Reversed = True
body.Tip = polarpattern6

sketch9 = body.newObject("Sketcher::SketchObject", "Sketch008")
sketch9.AttachmentSupport = (doc.getObject("YZ_Plane"), [""])
sketch9.MapMode = "FlatFace"
add_polygon(sketch9, [(25, -68.233351), (17.572637, -68.233351), (17.572637, -70.733351), (25, -70.733351)])
sketch9.addConstraint(Sketcher.Constraint("Horizontal", 0))
sketch9.addConstraint(Sketcher.Constraint("Vertical", 1))
sketch9.addConstraint(Sketcher.Constraint("Horizontal", 2))
sketch9.addConstraint(Sketcher.Constraint("Vertical", 3))
sketch9.addConstraint(Sketcher.Constraint("DistanceY", 1, 2, 1, 1, 2.5))
sketch9.addConstraint(Sketcher.Constraint("DistanceX", -1, 1, 2, 2, 25.0))
sketch9.addConstraint(Sketcher.Constraint("DistanceX", 0, 2, 0, 1, 7.427363))
sketch9.addConstraint(Sketcher.Constraint("DistanceY", 0, 2, -1, 1, 68.233351))
revolution = body.newObject("PartDesign::Revolution", "Revolution")
revolution.Profile = sketch9
revolution.ReferenceAxis = (sketch9, ["H_Axis"])
revolution.Angle = 61.68

sketch10 = body.newObject("Sketcher::SketchObject", "Sketch009")
sketch10.AttachmentSupport = (doc.getObject("YZ_Plane"), [""])
sketch10.MapMode = "FlatFace"
add_polygon(sketch10, [(25, -68.233351), (17.572637, -68.233351), (17.572637, -70.733351), (25, -70.733351)])
sketch10.addConstraint(Sketcher.Constraint("Horizontal", 0))
sketch10.addConstraint(Sketcher.Constraint("Vertical", 1))
sketch10.addConstraint(Sketcher.Constraint("Horizontal", 2))
sketch10.addConstraint(Sketcher.Constraint("Vertical", 3))
sketch10.addConstraint(Sketcher.Constraint("DistanceY", 1, 2, 1, 1, 2.5))
sketch10.addConstraint(Sketcher.Constraint("DistanceX", -1, 1, 2, 2, 25.0))
sketch10.addConstraint(Sketcher.Constraint("DistanceX", 0, 2, 0, 1, 7.427363))
sketch10.addConstraint(Sketcher.Constraint("DistanceY", 0, 2, -1, 1, 68.233351))
revolution2 = body.newObject("PartDesign::Revolution", "Revolution001")
revolution2.Profile = sketch10
revolution2.ReferenceAxis = (sketch10, ["H_Axis"])
revolution2.Angle = 61.68
revolution2.Reversed = True
doc.recompute()

fillet3 = body.newObject("PartDesign::Fillet", "Fillet002")
fillet3.Base = (revolution2, edges_at(revolution2, [(-62.267, 21.286, -33.556), (62.267, 21.286, -33.556)]))
fillet3.Radius = 1

doc.recompute()
